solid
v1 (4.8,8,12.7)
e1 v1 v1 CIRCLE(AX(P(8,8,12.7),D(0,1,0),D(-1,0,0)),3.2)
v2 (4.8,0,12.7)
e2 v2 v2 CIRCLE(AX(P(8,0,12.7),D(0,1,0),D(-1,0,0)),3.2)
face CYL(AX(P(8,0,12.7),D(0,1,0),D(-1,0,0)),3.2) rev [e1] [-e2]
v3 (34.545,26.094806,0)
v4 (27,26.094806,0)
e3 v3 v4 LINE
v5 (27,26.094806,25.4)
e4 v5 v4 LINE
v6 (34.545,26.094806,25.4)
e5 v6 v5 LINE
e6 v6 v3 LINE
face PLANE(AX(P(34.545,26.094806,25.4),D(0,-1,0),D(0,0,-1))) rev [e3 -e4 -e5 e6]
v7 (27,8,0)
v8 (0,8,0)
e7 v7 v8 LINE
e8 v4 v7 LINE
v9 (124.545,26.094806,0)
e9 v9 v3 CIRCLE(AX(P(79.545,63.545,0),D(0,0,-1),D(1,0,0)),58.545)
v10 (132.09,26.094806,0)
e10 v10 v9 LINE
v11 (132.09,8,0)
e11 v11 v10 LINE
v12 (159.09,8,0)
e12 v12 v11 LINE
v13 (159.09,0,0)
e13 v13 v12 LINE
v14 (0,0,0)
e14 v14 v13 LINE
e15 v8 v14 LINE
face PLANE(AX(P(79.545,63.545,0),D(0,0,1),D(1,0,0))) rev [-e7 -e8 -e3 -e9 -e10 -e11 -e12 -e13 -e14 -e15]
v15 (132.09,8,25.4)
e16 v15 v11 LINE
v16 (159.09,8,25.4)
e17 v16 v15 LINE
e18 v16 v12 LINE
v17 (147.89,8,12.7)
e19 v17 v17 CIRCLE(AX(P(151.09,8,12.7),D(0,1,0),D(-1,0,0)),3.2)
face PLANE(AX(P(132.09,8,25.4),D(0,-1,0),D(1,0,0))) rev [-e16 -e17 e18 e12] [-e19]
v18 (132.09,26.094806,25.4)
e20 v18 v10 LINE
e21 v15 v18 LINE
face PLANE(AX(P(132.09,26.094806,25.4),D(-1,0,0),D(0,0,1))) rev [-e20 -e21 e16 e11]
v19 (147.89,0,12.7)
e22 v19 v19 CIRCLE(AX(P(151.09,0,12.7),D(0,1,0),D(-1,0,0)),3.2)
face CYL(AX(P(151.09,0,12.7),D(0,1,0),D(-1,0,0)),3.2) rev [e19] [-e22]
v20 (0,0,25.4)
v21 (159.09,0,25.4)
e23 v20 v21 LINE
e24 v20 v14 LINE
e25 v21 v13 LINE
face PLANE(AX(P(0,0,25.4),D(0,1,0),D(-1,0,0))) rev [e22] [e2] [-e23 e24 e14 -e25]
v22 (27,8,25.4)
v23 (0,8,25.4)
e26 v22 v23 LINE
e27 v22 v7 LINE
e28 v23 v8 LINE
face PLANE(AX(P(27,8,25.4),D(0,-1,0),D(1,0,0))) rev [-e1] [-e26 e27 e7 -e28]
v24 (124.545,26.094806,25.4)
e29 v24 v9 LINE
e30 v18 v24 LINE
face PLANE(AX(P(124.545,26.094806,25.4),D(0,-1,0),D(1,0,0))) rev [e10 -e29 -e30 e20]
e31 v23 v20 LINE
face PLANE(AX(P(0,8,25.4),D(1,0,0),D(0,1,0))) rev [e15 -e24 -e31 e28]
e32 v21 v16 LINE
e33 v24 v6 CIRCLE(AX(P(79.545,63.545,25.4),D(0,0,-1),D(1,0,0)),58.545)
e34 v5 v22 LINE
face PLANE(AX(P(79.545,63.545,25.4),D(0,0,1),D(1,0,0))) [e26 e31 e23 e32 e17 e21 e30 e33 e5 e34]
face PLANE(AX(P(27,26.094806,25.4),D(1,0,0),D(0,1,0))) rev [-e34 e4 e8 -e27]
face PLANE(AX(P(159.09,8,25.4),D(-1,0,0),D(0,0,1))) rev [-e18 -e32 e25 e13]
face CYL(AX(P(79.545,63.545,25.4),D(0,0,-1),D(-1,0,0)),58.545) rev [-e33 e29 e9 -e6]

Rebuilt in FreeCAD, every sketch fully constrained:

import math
import FreeCAD as App
import Part
import Sketcher

doc = App.newDocument("Part")
params = doc.addObject("Spreadsheet::Sheet", "Params")
for row, (alias, value) in enumerate([
    ("sketch1_width", "27 mm"),
    ("sketch1_height", "8 mm"),
    ("sketch1_width2", "159.09 mm"),
    ("pad1_length", "25.4 mm"),
    ("sketch2_diameter", "6.4 mm"),
], start=1):
    params.set(f"A{row}", alias)
    params.set(f"B{row}", "=" + value)
    params.setAlias(f"B{row}", alias)

body = doc.addObject("PartDesign::Body", "Body")

# Sketch on XY plane
sketch1 = body.newObject("Sketcher::SketchObject", "Sketch")
sketch1.AttachmentSupport = (doc.getObject("XY_Plane"), [""])
sketch1.MapMode = "FlatFace"
sketch1.addGeometry(Part.LineSegment(App.Vector(132, 26, 0), App.Vector(125, 26, 0)), False)
sketch1.addGeometry(Part.ArcOfCircle(Part.Circle(App.Vector(80, 64, 0), App.Vector(0, 0, 1), 59), math.radians(-140), math.radians(-40)), False)
sketch1.addGeometry(Part.LineSegment(App.Vector(35, 26, 0), App.Vector(27, 26, 0)), False)
sketch1.addGeometry(Part.LineSegment(App.Vector(27, 26, 0), App.Vector(27, 8, 0)), False)
sketch1.addGeometry(Part.LineSegment(App.Vector(27, 8, 0), App.Vector(0, 8, 0)), False)
sketch1.addGeometry(Part.LineSegment(App.Vector(0, 8, 0), App.Vector(0, 0, 0)), False)
sketch1.addGeometry(Part.LineSegment(App.Vector(0, 0, 0), App.Vector(159, 0, 0)), False)
sketch1.addGeometry(Part.LineSegment(App.Vector(159, 0, 0), App.Vector(159, 8, 0)), False)
sketch1.addGeometry(Part.LineSegment(App.Vector(159, 8, 0), App.Vector(132, 8, 0)), False)
sketch1.addGeometry(Part.LineSegment(App.Vector(132, 8, 0), App.Vector(132, 26, 0)), False)
sketch1.addConstraint(Sketcher.Constraint("Coincident", 0, 2, 1, 2))
sketch1.addConstraint(Sketcher.Constraint("Coincident", 1, 1, 2, 1))
sketch1.addConstraint(Sketcher.Constraint("Coincident", 2, 2, 3, 1))
sketch1.addConstraint(Sketcher.Constraint("Coincident", 3, 2, 4, 1))
sketch1.addConstraint(Sketcher.Constraint("Coincident", 4, 2, 5, 1))
sketch1.addConstraint(Sketcher.Constraint("Coincident", 5, 2, 6, 1))
sketch1.addConstraint(Sketcher.Constraint("Coincident", 6, 2, 7, 1))
sketch1.addConstraint(Sketcher.Constraint("Coincident", 7, 2, 8, 1))
sketch1.addConstraint(Sketcher.Constraint("Coincident", 8, 2, 9, 1))
sketch1.addConstraint(Sketcher.Constraint("Coincident", 9, 2, 0, 1))
sketch1.addConstraint(Sketcher.Constraint("Horizontal", 0))
sketch1.addConstraint(Sketcher.Constraint("Horizontal", 2))
sketch1.addConstraint(Sketcher.Constraint("Vertical", 3))
sketch1.addConstraint(Sketcher.Constraint("Horizontal", 4))
sketch1.addConstraint(Sketcher.Constraint("Vertical", 5))
sketch1.addConstraint(Sketcher.Constraint("Horizontal", 6))
sketch1.addConstraint(Sketcher.Constraint("Vertical", 7))
sketch1.addConstraint(Sketcher.Constraint("Horizontal", 8))
sketch1.addConstraint(Sketcher.Constraint("Vertical", 9))
sketch1.addConstraint(Sketcher.Constraint("Coincident", 5, 2, -1, 1))
sketch1.addConstraint(Sketcher.Constraint("Horizontal", 0, 2, 1, 1))
sketch1.addConstraint(Sketcher.Constraint("Horizontal", 4, 2, 7, 2))
sketch1.addConstraint(Sketcher.Constraint("Equal", 0, 2))
sketch1.addConstraint(Sketcher.Constraint("Equal", 4, 8))
sketch1.addConstraint(Sketcher.Constraint("DistanceX", 4, 2, 4, 1, 27.0))
sketch1.addConstraint(Sketcher.Constraint("DistanceY", 5, 2, 5, 1, 8.0))
sketch1.addConstraint(Sketcher.Constraint("Radius", 1, 58.545))
sketch1.addConstraint(Sketcher.Constraint("DistanceX", 1, 3, 0, 2, 45.0))
sketch1.addConstraint(Sketcher.Constraint("DistanceX", 6, 1, 6, 2, 159.09))
sketch1.addConstraint(Sketcher.Constraint("DistanceY", -1, 1, 1, 3, 63.545))
sketch1.setExpression("Constraints[24]", "Params.sketch1_width")
sketch1.setExpression("Constraints[25]", "Params.sketch1_height")
sketch1.setExpression("Constraints[28]", "Params.sketch1_width2")
pad1 = body.newObject("PartDesign::Pad", "Pad")
pad1.Profile = sketch1
pad1.setExpression("Length", "Params.pad1_length")

# Sketch on XZ plane
sketch2 = body.newObject("Sketcher::SketchObject", "Sketch001")
sketch2.AttachmentSupport = (doc.getObject("XZ_Plane"), [""])
sketch2.MapMode = "FlatFace"
sketch2.AttachmentOffset = App.Placement(App.Vector(0, 0, -8), App.Rotation())
sketch2.addGeometry(Part.Circle(App.Vector(8, 12.7, 0), App.Vector(0, 0, 1), 3.2), False)
sketch2.addGeometry(Part.Circle(App.Vector(151.1, 12.7, 0), App.Vector(0, 0, 1), 3.2), False)
sketch2.addConstraint(Sketcher.Constraint("Equal", 0, 1))
sketch2.addConstraint(Sketcher.Constraint("Horizontal", 0, 3, 1, 3))
sketch2.addConstraint(Sketcher.Constraint("Diameter", 0, 6.4))
sketch2.addConstraint(Sketcher.Constraint("DistanceX", -1, 1, 0, 3, 8.0))
sketch2.addConstraint(Sketcher.Constraint("DistanceY", -1, 1, 0, 3, 12.7))
sketch2.addConstraint(Sketcher.Constraint("DistanceX", -1, 1, 1, 3, 151.09))
sketch2.setExpression("Constraints[2]", "Params.sketch2_diameter")
pocket1 = body.newObject("PartDesign::Pocket", "Pocket")
pocket1.Profile = sketch2
pocket1.Type = "ThroughAll"
pocket1.Reversed = True

doc.recompute()
